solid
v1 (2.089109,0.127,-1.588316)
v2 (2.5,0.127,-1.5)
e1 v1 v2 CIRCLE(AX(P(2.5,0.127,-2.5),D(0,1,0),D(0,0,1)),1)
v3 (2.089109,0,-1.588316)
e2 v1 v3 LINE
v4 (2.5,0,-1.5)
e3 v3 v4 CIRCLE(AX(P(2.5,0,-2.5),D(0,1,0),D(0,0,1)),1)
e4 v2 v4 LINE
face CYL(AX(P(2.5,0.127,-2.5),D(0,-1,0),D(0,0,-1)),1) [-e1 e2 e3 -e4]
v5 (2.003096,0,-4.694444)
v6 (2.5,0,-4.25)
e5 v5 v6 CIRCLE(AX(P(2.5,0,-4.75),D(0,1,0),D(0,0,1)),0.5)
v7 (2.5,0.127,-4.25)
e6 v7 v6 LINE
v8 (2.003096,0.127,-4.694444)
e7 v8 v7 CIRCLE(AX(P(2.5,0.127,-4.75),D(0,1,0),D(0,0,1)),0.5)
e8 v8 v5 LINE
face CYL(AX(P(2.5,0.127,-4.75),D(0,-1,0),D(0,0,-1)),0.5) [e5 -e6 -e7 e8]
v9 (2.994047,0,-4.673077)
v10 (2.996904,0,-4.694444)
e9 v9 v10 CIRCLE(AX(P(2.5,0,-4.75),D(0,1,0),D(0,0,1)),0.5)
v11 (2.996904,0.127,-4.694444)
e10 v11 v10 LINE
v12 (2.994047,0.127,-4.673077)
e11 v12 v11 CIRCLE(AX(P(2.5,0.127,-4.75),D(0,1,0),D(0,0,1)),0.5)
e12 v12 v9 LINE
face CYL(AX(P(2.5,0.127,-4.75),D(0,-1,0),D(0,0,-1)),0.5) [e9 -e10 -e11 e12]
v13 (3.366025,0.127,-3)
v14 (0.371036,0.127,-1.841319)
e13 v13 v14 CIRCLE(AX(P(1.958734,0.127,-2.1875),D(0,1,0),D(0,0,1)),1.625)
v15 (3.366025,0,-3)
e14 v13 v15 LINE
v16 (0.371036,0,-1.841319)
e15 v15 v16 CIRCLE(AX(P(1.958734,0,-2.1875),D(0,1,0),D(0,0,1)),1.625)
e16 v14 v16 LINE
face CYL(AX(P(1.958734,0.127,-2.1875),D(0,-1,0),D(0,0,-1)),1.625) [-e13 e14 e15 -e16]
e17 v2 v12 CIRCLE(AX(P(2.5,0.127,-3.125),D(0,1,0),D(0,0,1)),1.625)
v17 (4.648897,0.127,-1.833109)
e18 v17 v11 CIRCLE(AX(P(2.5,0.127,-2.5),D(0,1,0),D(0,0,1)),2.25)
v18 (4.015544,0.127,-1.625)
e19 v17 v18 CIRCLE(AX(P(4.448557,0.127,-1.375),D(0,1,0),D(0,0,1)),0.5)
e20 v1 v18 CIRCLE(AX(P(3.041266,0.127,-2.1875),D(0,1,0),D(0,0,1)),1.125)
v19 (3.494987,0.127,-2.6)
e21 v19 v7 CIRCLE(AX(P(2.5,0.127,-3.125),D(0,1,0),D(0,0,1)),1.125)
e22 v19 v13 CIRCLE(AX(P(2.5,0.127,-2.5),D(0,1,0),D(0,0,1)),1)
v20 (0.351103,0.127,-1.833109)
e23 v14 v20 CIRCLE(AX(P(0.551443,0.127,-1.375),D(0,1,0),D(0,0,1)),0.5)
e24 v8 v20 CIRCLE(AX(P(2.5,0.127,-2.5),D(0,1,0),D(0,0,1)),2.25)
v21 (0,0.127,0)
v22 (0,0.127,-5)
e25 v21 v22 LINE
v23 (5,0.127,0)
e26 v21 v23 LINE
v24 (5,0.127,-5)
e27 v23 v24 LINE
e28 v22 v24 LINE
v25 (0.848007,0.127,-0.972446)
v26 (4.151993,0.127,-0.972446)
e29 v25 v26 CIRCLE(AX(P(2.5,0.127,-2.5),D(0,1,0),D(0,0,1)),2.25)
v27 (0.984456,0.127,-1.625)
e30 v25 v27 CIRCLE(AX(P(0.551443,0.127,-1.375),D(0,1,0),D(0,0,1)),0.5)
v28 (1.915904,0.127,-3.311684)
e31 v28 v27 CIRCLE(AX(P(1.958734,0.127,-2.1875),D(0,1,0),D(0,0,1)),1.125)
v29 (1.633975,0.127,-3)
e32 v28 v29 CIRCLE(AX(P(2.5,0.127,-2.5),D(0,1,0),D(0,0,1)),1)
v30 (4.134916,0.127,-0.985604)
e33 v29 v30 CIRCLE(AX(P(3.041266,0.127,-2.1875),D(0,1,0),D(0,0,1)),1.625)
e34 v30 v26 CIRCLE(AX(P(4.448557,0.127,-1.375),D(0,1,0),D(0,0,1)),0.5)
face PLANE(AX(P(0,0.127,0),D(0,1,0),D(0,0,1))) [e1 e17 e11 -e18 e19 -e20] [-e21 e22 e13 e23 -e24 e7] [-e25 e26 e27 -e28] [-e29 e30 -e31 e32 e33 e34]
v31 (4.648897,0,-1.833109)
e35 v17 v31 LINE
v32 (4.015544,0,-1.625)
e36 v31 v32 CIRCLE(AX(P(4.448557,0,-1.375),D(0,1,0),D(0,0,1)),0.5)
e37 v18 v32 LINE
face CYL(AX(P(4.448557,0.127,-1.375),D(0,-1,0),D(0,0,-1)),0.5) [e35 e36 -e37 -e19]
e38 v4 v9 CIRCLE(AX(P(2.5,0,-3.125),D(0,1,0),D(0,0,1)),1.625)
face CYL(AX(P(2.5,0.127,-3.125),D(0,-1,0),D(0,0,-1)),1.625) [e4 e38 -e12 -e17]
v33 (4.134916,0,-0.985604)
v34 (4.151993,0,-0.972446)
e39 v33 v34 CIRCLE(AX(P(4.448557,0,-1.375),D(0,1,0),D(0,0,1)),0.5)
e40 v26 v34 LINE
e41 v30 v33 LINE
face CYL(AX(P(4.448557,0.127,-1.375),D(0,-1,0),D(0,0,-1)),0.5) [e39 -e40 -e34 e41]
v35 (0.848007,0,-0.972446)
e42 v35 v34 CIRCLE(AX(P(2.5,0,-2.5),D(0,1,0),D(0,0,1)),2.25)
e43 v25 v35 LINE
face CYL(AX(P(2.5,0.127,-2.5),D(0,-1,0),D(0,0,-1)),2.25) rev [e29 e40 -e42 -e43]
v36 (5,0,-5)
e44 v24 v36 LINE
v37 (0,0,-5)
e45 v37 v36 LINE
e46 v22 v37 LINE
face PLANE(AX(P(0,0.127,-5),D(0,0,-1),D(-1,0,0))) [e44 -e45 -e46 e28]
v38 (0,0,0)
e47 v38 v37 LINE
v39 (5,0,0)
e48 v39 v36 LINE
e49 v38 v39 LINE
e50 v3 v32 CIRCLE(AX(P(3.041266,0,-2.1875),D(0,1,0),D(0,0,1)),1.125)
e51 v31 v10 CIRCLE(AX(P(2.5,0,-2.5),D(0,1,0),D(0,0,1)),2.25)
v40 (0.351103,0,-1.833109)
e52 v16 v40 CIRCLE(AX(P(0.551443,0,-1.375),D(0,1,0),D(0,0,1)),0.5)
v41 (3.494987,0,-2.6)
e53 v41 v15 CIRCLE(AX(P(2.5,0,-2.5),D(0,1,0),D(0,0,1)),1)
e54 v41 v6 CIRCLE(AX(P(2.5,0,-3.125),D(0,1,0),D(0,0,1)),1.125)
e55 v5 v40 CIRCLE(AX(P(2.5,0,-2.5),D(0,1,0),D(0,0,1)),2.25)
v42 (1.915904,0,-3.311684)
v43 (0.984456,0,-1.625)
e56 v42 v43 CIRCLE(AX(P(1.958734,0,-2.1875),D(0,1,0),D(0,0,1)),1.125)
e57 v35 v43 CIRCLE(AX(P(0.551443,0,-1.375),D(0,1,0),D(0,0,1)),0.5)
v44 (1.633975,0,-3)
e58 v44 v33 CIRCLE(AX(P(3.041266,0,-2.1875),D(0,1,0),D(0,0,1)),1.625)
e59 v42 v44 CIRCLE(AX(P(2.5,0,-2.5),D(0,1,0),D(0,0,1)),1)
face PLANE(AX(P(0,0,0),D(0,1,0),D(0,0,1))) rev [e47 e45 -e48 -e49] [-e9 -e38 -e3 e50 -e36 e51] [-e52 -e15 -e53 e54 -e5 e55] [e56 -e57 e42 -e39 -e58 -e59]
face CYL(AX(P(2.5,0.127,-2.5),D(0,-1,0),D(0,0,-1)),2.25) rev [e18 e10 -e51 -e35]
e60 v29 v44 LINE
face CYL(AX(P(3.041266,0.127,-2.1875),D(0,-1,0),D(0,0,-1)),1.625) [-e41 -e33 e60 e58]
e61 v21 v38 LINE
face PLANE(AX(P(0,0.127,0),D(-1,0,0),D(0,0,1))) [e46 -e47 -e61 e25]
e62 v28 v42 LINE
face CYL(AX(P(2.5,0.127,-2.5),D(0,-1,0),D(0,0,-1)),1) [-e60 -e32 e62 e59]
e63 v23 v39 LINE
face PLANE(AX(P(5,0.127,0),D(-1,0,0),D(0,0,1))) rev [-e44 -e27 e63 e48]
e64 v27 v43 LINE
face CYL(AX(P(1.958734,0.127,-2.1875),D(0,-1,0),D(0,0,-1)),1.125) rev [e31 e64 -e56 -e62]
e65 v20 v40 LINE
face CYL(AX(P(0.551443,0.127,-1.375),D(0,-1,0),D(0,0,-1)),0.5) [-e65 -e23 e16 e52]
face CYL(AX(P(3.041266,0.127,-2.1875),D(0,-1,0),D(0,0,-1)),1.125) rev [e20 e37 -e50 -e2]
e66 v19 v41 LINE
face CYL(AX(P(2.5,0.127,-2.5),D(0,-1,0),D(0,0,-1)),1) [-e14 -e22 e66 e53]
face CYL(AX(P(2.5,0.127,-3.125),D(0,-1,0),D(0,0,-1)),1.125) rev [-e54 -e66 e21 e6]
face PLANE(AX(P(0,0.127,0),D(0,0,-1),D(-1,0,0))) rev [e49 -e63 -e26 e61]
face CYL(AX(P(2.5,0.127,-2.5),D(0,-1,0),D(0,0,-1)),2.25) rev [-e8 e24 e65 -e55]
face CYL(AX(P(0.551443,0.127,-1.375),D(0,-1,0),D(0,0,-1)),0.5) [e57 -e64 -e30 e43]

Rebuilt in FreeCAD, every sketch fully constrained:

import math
import FreeCAD as App
import Part
import Sketcher
from FreeCAD import Vector


def add_polygon(sketch, points):
    """Adds a closed chain of lines whose ends are joined by coincident constraints."""
    first, n = sketch.GeometryCount, len(points)
    for a, b in zip(points, points[1:] + points[:1]):
        sketch.addGeometry(Part.LineSegment(App.Vector(*a, 0), App.Vector(*b, 0)), False)
    for i in range(n):
        sketch.addConstraint(Sketcher.Constraint("Coincident", first + i, 2, first + (i + 1) % n, 1))

doc = App.newDocument("Part")
params = doc.addObject("Spreadsheet::Sheet", "Params")
for row, (alias, value) in enumerate([
    ("sketch1_radius", "1 mm"),
    ("sketch1_radius2", "0.499999 mm"),
    ("sketch1_width", "5 mm"),
    ("sketch1_radius3", "2.25 mm"),
    ("sketch1_height", "0.25 mm"),
    ("pad1_length", "0.127 mm"),
], start=1):
    params.set(f"A{row}", alias)
    params.set(f"B{row}", "=" + value)
    params.setAlias(f"B{row}", alias)

body = doc.addObject("PartDesign::Body", "Body")

# Sketch on XZ plane
sketch1 = body.newObject("Sketcher::SketchObject", "Sketch")
sketch1.AttachmentSupport = (doc.getObject("XZ_Plane"), [""])
sketch1.MapMode = "FlatFace"
add_polygon(sketch1, [(0, -5), (0, 0), (5, 0), (5, -5)])  # lines 0-3
sketch1.addGeometry(Part.ArcOfCircle(Part.Circle(Vector(4.448556, -1.374999, 0), Vector(0, 0, 1), 0.499999), math.radians(126.379365), math.radians(128.849883)), False)  # 4
sketch1.addGeometry(Part.ArcOfCircle(Part.Circle(Vector(2.5, -2.5, 0), Vector(0, 0, 1), 2.25), math.radians(42.75874), math.radians(137.24126)), False)  # 5
sketch1.addGeometry(Part.ArcOfCircle(Part.Circle(Vector(0.551443, -1.375, 0), Vector(0, 0, 1), 0.5), math.radians(-30), math.radians(53.62063)), False)  # 6
sketch1.addGeometry(Part.ArcOfCircle(Part.Circle(Vector(1.958734, -2.1875, 0), Vector(0, 0, 1), 1.125), math.radians(150), math.radians(267.818139)), False)  # 7
sketch1.addGeometry(Part.ArcOfCircle(Part.Circle(Vector(2.5, -2.5, 0), Vector(0, 0, 1), 1), math.radians(-150), math.radians(-125.739171)), False)  # 8
sketch1.addGeometry(Part.ArcOfCircle(Part.Circle(Vector(3.041266, -2.1875, 0), Vector(0, 0, 1), 1.625), math.radians(47.699766), math.radians(210)), False)  # 9
sketch1.addGeometry(Part.ArcOfCircle(Part.Circle(Vector(0.551443, -1.375, 0), Vector(0, 0, 1), 0.5), math.radians(-113.620626), math.radians(-111.150115)), False)  # 10
sketch1.addGeometry(Part.ArcOfCircle(Part.Circle(Vector(2.5, -2.5, 0), Vector(0, 0, 1), 2.25), math.radians(162.75874), math.radians(257.24126)), False)  # 11
sketch1.addGeometry(Part.ArcOfCircle(Part.Circle(Vector(2.5, -4.75, 0), Vector(0, 0, 1), 0.5), math.radians(90), math.radians(173.62063)), False)  # 12
sketch1.addGeometry(Part.ArcOfCircle(Part.Circle(Vector(2.5, -3.125, 0), Vector(0, 0, 1), 1.125), math.radians(-90), math.radians(27.818139)), False)  # 13
sketch1.addGeometry(Part.ArcOfCircle(Part.Circle(Vector(2.5, -2.5, 0), Vector(0, 0, 1), 1), math.radians(-30), math.radians(-5.739171)), False)  # 14
sketch1.addGeometry(Part.ArcOfCircle(Part.Circle(Vector(1.958734, -2.1875, 0), Vector(0, 0, 1), 1.625), math.radians(167.699766), math.radians(330)), False)  # 15
sketch1.addGeometry(Part.ArcOfCircle(Part.Circle(Vector(2.500001, -4.75, 0), Vector(0, 0, 1), 0.499999), math.radians(6.379367), math.radians(8.849886)), False)  # 16
sketch1.addGeometry(Part.ArcOfCircle(Part.Circle(Vector(2.5, -2.5, 0), Vector(0, 0, 1), 2.25), math.radians(-77.24126), math.radians(17.24126)), False)  # 17
sketch1.addGeometry(Part.ArcOfCircle(Part.Circle(Vector(4.448557, -1.375, 0), Vector(0, 0, 1), 0.5), math.radians(-150), math.radians(-66.37937)), False)  # 18
sketch1.addGeometry(Part.ArcOfCircle(Part.Circle(Vector(3.041266, -2.1875, 0), Vector(0, 0, 1), 1.125), math.radians(30), math.radians(147.818139)), False)  # 19
sketch1.addGeometry(Part.ArcOfCircle(Part.Circle(Vector(2.5, -2.5, 0), Vector(0, 0, 1), 1), math.radians(90), math.radians(114.26083)), False)  # 20
sketch1.addGeometry(Part.ArcOfCircle(Part.Circle(Vector(2.5, -3.125, 0), Vector(0, 0, 1), 1.625), math.radians(-72.300234), math.radians(90)), False)  # 21
sketch1.addConstraint([
    Sketcher.Constraint("Coincident", 4, 1, 5, 1),
    Sketcher.Constraint("Coincident", 5, 2, 6, 2),
    Sketcher.Constraint("Tangent", 6, 1, 7, 1),
    Sketcher.Constraint("Coincident", 7, 2, 8, 2),
    Sketcher.Constraint("Tangent", 8, 1, 9, 2),
    Sketcher.Constraint("Coincident", 9, 1, 4, 2),
    Sketcher.Constraint("Coincident", 10, 1, 11, 1),
    Sketcher.Constraint("Coincident", 11, 2, 12, 2),
    Sketcher.Constraint("Tangent", 12, 1, 13, 1),
    Sketcher.Constraint("Coincident", 13, 2, 14, 2),
    Sketcher.Constraint("Tangent", 14, 1, 15, 2),
    Sketcher.Constraint("Coincident", 15, 1, 10, 2),
    Sketcher.Constraint("Coincident", 16, 1, 17, 1),
    Sketcher.Constraint("Coincident", 17, 2, 18, 2),
    Sketcher.Constraint("Tangent", 18, 1, 19, 1),
    Sketcher.Constraint("Coincident", 19, 2, 20, 2),
    Sketcher.Constraint("Tangent", 20, 1, 21, 2),
    Sketcher.Constraint("Coincident", 21, 1, 16, 2),
    Sketcher.Constraint("Vertical", 0),
    Sketcher.Constraint("Horizontal", 1),
    Sketcher.Constraint("Vertical", 2),
    Sketcher.Constraint("Horizontal", 3),
    Sketcher.Constraint("Coincident", 0, 2, -1, 1),
    Sketcher.Constraint("Coincident", 8, 3, 5, 3),
    Sketcher.Constraint("Coincident", 10, 3, 6, 3),
    Sketcher.Constraint("Coincident", 11, 3, 5, 3),
    Sketcher.Constraint("Coincident", 14, 3, 5, 3),
    Sketcher.Constraint("Coincident", 15, 3, 7, 3),
    Sketcher.Constraint("Coincident", 16, 3, 12, 3),
    Sketcher.Constraint("Coincident", 17, 3, 5, 3),
    Sketcher.Constraint("Coincident", 18, 3, 4, 3),
    Sketcher.Constraint("Coincident", 19, 3, 9, 3),
    Sketcher.Constraint("Coincident", 20, 3, 5, 3),
    Sketcher.Constraint("Coincident", 21, 3, 13, 3),
    Sketcher.Constraint("Equal", 4, 6),
    Sketcher.Constraint("Equal", 6, 10),
    Sketcher.Constraint("Equal", 5, 11),
    Sketcher.Constraint("Equal", 10, 12),
    Sketcher.Constraint("Equal", 7, 13),
    Sketcher.Constraint("Equal", 8, 14),
    Sketcher.Constraint("Equal", 9, 15),
    Sketcher.Constraint("Equal", 12, 16),
    Sketcher.Constraint("Equal", 11, 17),
    Sketcher.Constraint("Equal", 16, 18),
    Sketcher.Constraint("Equal", 13, 19),
    Sketcher.Constraint("Equal", 14, 20),
    Sketcher.Constraint("Equal", 15, 21),
    Sketcher.Constraint("Horizontal", 4, 3, 6, 3),
    Sketcher.Constraint("Horizontal", 7, 3, 9, 3),
    Sketcher.Constraint("Horizontal", 11, 2, 16, 1),
    Sketcher.Constraint("Vertical", 12, 3, 13, 3),
    Sketcher.Constraint("Equal", 3, 0),
    Sketcher.Constraint("Radius", 8, 1.0),
    Sketcher.Constraint("Radius", 4, 0.499999),
    Sketcher.Constraint("DistanceX", 1, 1, 1, 2, 5.0),
    Sketcher.Constraint("Radius", 5, 2.25),
    Sketcher.Constraint("DistanceY", 8, 1, -1, 1, 3.0),
    Sketcher.Constraint("Radius", 7, 1.125),
    Sketcher.Constraint("Radius", 9, 1.625),
    Sketcher.Constraint("DistanceX", -1, 1, 5, 3, 2.5),
    Sketcher.Constraint("DistanceY", 5, 3, -1, 1, 2.5),
    Sketcher.Constraint("DistanceY", 6, 1, 6, 3, 0.25),
])
sketch1.setExpression("Constraints[56]", "Params.sketch1_radius")
sketch1.setExpression("Constraints[57]", "Params.sketch1_radius2")
sketch1.setExpression("Constraints[58]", "Params.sketch1_width")
sketch1.setExpression("Constraints[59]", "Params.sketch1_radius3")
sketch1.setExpression("Constraints[65]", "Params.sketch1_height")
pad1 = body.newObject("PartDesign::Pad", "Pad")
pad1.Profile = sketch1
pad1.setExpression("Length", "Params.pad1_length")
pad1.Reversed = True

doc.recompute()
